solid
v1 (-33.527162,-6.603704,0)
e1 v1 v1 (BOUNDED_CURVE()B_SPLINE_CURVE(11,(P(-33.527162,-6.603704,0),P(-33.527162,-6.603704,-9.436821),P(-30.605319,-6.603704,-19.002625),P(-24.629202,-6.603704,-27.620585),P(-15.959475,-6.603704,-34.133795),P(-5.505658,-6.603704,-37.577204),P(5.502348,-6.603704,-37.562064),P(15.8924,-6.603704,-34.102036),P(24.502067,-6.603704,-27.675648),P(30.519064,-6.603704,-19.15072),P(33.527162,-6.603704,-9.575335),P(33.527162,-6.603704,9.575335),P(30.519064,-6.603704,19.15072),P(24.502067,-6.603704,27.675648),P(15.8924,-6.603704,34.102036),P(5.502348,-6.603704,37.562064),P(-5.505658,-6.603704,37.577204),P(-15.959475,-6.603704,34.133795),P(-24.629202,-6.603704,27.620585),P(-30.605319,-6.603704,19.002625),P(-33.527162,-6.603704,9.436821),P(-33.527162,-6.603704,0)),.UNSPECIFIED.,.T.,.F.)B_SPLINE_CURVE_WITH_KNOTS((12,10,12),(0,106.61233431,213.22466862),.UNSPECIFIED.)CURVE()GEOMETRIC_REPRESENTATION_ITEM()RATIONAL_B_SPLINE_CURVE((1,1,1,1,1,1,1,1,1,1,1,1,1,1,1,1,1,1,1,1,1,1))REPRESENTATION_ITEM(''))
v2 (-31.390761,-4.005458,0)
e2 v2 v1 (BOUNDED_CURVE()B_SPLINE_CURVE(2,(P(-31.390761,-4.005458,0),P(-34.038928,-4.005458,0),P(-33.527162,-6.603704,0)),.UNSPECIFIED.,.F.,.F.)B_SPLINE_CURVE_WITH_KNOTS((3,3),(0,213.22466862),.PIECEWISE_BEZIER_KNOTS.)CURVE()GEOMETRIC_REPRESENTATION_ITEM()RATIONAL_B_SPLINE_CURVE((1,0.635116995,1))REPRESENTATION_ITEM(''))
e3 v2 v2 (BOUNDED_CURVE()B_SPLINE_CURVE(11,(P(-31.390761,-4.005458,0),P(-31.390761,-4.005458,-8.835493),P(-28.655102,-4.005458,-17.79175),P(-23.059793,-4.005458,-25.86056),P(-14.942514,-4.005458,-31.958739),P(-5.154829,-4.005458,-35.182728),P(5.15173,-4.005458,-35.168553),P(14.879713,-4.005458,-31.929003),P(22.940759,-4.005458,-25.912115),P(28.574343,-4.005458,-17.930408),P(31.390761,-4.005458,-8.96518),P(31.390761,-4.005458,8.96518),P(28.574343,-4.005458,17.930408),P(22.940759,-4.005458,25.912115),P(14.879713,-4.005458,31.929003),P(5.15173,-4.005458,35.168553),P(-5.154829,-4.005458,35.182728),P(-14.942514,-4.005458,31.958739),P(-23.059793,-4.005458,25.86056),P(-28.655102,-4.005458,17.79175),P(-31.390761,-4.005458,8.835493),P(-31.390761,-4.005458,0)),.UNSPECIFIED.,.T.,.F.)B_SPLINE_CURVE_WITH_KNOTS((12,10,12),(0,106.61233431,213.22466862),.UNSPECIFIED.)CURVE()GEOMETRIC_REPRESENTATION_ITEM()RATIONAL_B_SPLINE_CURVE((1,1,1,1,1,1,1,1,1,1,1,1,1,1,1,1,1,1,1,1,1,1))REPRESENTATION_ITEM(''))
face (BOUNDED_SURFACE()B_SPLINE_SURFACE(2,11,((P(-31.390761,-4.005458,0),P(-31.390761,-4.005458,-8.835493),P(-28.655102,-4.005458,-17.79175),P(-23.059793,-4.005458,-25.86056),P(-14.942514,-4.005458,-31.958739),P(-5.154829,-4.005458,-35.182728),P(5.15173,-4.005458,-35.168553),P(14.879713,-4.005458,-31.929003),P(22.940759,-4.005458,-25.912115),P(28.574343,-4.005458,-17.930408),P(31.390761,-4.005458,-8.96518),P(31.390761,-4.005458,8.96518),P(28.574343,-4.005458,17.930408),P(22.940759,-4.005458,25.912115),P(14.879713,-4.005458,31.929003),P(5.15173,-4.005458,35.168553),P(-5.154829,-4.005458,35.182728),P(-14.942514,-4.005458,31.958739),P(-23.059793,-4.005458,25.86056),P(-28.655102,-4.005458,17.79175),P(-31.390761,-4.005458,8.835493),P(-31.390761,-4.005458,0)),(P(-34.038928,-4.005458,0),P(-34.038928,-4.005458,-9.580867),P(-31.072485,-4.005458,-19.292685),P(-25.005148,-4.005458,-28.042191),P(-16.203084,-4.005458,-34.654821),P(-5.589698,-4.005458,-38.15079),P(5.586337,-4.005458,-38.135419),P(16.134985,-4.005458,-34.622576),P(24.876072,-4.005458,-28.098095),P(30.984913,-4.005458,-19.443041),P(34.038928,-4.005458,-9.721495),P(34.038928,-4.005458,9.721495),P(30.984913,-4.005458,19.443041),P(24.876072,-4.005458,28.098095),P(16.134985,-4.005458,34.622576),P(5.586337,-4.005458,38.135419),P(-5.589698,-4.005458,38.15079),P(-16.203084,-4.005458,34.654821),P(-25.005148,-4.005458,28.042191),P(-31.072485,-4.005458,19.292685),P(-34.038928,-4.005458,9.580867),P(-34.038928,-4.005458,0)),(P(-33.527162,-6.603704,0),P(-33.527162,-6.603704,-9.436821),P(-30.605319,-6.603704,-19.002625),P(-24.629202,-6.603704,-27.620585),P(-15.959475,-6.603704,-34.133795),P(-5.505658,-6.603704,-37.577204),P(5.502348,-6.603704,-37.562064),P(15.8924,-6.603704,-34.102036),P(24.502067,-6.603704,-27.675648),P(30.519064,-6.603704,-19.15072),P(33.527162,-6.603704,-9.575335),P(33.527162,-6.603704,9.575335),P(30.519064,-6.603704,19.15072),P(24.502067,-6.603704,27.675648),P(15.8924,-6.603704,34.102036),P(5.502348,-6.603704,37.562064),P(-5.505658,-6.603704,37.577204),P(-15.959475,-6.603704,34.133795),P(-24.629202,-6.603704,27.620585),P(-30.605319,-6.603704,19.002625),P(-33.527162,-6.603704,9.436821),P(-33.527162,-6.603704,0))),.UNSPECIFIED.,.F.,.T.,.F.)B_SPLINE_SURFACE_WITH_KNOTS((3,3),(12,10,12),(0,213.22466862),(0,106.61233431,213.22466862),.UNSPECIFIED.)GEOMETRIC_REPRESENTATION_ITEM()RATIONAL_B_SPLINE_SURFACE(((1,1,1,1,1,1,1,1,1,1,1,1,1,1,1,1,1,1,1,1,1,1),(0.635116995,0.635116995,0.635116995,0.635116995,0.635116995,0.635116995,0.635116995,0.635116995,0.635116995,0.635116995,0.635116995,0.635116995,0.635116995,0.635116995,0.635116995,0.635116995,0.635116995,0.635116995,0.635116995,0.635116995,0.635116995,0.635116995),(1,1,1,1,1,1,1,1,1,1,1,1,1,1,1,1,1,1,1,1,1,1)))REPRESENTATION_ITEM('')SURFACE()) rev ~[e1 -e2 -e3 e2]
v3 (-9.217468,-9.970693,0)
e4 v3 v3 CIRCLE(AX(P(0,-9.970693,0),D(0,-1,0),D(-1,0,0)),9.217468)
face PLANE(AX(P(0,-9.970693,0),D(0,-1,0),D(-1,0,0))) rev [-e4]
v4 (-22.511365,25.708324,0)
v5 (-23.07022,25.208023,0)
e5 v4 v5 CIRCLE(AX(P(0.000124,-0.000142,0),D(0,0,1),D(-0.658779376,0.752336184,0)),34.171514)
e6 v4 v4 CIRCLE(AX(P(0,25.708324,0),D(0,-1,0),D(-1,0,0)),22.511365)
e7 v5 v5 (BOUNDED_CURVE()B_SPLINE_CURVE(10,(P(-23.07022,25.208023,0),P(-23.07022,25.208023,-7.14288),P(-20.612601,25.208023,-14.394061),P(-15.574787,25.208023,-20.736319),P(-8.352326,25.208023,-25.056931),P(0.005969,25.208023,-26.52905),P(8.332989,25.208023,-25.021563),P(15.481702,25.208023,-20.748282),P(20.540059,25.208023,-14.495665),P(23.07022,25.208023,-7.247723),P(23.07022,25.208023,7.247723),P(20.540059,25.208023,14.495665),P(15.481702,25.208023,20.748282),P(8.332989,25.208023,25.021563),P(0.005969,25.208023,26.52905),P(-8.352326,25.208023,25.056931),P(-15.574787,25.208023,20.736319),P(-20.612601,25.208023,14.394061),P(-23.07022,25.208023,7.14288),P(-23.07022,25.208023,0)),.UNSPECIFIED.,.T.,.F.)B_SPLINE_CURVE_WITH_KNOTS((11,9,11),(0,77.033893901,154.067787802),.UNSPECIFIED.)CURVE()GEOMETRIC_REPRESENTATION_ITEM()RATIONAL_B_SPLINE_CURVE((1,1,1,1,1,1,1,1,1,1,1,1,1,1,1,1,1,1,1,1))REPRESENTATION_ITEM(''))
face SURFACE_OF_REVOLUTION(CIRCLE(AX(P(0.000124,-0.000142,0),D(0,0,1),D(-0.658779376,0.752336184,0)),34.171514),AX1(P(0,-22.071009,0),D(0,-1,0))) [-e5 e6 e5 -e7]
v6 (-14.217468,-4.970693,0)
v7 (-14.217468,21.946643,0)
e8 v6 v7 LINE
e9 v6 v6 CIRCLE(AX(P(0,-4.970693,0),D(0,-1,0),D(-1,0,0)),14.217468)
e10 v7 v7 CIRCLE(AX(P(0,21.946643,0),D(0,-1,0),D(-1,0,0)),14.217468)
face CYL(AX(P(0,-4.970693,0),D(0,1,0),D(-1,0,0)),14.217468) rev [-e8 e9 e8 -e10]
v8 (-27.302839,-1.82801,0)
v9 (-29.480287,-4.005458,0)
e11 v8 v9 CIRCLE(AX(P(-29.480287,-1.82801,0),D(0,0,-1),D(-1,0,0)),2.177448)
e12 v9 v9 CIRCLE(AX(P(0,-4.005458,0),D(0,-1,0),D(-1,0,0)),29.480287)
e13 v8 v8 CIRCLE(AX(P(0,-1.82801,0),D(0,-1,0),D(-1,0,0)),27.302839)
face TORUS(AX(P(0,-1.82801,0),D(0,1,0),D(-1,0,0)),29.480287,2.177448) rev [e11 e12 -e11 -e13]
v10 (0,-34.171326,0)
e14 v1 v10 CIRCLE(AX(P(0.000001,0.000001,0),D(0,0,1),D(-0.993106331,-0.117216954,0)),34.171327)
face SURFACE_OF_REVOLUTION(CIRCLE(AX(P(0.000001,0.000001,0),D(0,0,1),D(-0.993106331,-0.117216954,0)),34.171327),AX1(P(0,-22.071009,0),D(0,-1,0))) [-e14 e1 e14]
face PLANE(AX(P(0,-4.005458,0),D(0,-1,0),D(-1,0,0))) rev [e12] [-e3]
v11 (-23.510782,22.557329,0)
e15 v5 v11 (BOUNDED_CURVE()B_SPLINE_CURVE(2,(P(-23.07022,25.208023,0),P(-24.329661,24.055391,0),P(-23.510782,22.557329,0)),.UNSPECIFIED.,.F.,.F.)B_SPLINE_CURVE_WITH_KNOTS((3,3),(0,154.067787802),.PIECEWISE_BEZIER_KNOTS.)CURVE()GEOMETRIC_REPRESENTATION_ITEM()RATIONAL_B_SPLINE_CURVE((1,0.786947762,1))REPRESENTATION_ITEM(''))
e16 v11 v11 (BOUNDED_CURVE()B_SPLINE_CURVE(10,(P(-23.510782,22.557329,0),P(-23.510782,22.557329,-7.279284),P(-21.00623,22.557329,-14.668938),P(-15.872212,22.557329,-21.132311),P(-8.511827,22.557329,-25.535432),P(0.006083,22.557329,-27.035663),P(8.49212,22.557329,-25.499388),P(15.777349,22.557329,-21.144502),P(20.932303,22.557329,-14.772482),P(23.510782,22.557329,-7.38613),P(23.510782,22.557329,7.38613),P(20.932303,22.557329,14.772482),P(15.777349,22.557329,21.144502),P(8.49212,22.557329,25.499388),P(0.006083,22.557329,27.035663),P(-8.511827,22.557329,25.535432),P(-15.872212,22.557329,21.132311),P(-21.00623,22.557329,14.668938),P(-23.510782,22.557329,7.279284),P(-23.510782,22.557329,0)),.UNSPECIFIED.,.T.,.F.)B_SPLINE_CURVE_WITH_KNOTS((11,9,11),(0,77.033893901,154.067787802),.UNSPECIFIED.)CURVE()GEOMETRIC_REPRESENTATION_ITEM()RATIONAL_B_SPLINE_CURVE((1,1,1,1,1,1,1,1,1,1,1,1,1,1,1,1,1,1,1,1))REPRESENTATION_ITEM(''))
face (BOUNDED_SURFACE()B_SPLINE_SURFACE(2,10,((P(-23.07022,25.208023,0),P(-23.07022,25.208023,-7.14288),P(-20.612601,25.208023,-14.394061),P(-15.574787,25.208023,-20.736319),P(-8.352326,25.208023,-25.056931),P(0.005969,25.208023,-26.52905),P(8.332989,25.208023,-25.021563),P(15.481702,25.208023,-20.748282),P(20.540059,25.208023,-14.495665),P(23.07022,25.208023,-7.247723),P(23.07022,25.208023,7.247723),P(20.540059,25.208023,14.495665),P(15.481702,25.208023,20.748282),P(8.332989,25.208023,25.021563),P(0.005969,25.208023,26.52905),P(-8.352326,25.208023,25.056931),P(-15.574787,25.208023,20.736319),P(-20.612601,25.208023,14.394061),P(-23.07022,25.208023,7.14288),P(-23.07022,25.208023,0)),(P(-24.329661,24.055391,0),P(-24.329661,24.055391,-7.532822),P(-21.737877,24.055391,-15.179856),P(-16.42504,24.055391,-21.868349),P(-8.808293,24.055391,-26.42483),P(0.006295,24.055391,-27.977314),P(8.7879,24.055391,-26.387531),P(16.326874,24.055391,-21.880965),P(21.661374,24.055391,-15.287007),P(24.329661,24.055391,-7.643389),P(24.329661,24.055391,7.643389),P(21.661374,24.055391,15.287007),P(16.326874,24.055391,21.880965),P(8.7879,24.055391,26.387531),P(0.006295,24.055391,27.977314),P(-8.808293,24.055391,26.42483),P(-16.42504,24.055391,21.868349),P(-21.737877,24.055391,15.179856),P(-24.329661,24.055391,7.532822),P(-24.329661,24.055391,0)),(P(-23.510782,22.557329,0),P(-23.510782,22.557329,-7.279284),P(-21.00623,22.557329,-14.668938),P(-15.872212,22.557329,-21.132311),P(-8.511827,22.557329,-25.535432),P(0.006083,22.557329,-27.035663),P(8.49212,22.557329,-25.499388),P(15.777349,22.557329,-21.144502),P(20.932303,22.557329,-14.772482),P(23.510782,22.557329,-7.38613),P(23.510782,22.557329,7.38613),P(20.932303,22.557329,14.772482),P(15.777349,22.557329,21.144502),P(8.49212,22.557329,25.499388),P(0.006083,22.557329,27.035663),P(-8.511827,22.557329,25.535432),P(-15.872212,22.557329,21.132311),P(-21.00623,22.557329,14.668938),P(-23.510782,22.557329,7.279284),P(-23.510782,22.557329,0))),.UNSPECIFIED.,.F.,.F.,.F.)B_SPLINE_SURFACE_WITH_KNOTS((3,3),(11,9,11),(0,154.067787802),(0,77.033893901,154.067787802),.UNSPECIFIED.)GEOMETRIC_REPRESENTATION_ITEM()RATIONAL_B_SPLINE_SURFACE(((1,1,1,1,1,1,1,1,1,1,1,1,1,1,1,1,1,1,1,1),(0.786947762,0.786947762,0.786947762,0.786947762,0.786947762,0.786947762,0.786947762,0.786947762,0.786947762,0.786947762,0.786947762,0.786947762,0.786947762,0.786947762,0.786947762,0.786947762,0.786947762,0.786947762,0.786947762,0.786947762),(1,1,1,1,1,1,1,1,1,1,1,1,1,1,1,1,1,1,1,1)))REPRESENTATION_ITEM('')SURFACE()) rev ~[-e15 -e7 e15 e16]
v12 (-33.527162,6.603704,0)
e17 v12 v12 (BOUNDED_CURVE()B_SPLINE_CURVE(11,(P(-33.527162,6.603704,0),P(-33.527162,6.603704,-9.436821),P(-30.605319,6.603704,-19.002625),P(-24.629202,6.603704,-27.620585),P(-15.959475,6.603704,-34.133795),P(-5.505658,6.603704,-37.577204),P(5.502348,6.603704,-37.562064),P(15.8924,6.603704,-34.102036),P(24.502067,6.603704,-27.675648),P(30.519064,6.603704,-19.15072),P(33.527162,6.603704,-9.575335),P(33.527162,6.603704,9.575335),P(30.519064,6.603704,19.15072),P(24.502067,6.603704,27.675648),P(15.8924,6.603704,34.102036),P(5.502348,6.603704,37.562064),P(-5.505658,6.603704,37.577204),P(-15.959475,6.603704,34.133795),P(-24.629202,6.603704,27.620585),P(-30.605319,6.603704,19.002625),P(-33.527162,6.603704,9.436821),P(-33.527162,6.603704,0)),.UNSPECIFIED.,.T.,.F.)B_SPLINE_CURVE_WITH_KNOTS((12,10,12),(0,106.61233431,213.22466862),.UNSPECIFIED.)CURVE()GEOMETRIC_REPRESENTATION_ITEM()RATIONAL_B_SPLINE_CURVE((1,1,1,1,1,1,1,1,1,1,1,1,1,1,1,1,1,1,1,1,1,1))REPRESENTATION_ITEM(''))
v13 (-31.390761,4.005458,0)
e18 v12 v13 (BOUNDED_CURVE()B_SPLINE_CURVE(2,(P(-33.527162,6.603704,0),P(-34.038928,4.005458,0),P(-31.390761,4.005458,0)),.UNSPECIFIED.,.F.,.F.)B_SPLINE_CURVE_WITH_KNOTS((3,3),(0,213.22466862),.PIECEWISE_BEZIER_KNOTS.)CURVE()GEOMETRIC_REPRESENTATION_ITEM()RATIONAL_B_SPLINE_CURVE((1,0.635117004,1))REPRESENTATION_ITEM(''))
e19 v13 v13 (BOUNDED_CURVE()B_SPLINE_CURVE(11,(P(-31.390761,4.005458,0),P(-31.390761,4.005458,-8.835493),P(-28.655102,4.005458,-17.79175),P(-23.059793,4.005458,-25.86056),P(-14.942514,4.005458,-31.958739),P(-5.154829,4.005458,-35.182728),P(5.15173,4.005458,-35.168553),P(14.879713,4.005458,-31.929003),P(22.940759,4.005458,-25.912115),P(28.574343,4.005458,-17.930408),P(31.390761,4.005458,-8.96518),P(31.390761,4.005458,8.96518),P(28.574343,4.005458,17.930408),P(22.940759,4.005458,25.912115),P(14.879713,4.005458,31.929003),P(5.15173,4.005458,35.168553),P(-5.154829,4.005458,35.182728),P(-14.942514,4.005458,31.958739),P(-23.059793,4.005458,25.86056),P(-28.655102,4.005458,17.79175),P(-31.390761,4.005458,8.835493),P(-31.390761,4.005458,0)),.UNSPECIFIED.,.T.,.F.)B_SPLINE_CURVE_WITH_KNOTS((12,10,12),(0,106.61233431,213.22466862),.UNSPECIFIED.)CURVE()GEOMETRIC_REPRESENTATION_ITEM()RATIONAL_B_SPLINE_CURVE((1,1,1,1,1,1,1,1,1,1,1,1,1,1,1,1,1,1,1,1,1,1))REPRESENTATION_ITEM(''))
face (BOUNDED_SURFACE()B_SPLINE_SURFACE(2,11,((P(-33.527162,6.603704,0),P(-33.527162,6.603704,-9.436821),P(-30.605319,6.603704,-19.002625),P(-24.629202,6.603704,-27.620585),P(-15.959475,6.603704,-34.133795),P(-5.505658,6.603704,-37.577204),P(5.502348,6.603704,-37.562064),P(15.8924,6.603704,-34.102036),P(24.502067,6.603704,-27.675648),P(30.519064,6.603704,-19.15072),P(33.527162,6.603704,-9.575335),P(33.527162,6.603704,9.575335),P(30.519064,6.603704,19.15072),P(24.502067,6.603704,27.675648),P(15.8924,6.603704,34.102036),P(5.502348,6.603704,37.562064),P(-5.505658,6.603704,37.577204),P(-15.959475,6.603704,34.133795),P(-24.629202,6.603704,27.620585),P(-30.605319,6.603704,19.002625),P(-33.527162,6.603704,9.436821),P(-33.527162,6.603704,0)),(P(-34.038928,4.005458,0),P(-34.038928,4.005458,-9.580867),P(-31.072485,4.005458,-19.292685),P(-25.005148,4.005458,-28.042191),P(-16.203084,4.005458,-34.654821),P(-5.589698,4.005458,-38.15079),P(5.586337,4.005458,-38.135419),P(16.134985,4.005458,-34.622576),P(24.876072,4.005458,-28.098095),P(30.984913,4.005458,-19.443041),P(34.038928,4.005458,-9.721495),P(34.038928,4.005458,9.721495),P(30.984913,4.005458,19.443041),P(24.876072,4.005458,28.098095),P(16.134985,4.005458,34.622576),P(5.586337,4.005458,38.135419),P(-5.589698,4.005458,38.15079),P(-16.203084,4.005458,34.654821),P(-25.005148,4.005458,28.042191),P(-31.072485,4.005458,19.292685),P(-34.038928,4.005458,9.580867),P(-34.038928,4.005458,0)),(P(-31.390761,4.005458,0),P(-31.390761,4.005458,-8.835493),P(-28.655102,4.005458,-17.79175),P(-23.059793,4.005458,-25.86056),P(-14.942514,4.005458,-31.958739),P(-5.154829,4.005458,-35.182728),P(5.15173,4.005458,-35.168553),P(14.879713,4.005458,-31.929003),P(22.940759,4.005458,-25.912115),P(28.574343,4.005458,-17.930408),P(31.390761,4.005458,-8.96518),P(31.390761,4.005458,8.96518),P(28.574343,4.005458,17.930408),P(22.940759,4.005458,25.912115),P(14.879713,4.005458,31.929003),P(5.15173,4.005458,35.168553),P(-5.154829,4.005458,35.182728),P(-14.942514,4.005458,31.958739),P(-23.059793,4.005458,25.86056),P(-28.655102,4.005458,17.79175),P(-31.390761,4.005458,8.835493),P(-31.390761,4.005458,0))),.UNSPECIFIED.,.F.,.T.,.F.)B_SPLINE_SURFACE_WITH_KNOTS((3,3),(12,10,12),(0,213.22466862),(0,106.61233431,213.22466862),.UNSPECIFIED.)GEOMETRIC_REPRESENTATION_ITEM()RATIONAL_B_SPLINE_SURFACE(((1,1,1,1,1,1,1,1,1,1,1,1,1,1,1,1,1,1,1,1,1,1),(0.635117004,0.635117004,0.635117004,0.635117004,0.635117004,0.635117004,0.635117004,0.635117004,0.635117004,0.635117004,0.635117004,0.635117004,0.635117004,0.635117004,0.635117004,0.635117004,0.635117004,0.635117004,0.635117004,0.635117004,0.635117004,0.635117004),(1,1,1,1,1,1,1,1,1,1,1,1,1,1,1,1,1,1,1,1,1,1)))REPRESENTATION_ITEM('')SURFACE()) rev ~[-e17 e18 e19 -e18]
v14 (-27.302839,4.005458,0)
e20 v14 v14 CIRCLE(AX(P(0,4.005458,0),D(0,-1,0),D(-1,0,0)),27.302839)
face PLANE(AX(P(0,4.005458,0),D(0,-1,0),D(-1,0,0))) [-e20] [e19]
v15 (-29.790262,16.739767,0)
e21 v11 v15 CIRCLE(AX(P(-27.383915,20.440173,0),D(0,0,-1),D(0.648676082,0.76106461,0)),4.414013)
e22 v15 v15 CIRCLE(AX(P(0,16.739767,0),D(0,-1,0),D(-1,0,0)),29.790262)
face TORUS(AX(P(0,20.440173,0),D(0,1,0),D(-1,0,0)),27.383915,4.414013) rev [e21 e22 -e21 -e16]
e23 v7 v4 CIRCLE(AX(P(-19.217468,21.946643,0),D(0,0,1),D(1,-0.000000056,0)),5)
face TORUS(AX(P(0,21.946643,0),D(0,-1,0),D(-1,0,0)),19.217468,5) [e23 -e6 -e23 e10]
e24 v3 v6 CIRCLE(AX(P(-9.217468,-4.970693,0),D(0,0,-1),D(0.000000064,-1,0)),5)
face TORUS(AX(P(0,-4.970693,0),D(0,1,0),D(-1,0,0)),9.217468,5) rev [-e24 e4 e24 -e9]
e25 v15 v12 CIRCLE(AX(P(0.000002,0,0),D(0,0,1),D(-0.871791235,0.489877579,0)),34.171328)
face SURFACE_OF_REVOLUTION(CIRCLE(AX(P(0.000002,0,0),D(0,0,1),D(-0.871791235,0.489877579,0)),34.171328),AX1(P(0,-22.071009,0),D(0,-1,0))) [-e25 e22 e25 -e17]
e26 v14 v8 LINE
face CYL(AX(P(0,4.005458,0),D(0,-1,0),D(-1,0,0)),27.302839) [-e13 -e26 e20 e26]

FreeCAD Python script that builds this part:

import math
import FreeCAD as App
import Part
import Sketcher
from FreeCAD import Vector
Q = App.Units.Quantity


def edges_at(feature, points):
    """Names of the edges that pass closest to the given points."""
    edges = feature.Shape.Edges
    near = lambda p: min(range(len(edges)), key=lambda i: edges[i].distToShape(Part.Vertex(*p))[0])
    return sorted({f"Edge{near(p) + 1}" for p in points})

doc = App.newDocument("Part")
body = doc.addObject("PartDesign::Body", "Body")

sketch1 = doc.addObject("Sketcher::SketchObject", "Sketch")
body.addObject(sketch1)
sketch1.AttachmentSupport = (doc.XY_Plane, [""])
sketch1.MapMode = "FlatFace"
sketch1.addGeometry([
    Part.ArcOfCircle(Part.Circle(Vector(-19.2, 21.9, 0), Vector(0, 0, 1), 5), math.radians(0), math.radians(131)),
    Part.ArcOfCircle(Part.Circle(Vector(0, 0, 0), Vector(0, 0, 1), 34.2), math.radians(131.21), math.radians(135.85)),
    Part.ArcOfCircle(Part.Circle(Vector(-27.4, 20.4, 0), Vector(0, 0, 1), 4.4), math.radians(-123), math.radians(50)),
    Part.ArcOfCircle(Part.Circle(Vector(0, 0, 0), Vector(0, 0, 1), 34.2), math.radians(151), math.radians(173)),
    Part.LineSegment(Vector(-33.9, 4, 0), Vector(-27.3, 4, 0)),
    Part.LineSegment(Vector(-27.3, 4, 0), Vector(-27.3, -4, 0)),
    Part.LineSegment(Vector(-27.3, -4, 0), Vector(-33.9, -4, 0)),
    Part.ArcOfCircle(Part.Circle(Vector(0, 0, 0), Vector(0, 0, 1), 34.2), math.radians(-173), math.radians(-90)),
    Part.LineSegment(Vector(0, -34.2, 0), Vector(0, -10, 0)),
    Part.LineSegment(Vector(0, -10, 0), Vector(-9.2, -10, 0)),
    Part.ArcOfCircle(Part.Circle(Vector(-9.2, -5, 0), Vector(0, 0, 1), 5), math.radians(180), math.radians(270)),
    Part.LineSegment(Vector(-14.2, -5, 0), Vector(-14.2, 21.9, 0)),
], False)
sketch1.addConstraint([
    Sketcher.Constraint("Tangent", 0, 2, 1, 1),
    Sketcher.Constraint("Coincident", 1, 2, 2, 2),
    Sketcher.Constraint("Coincident", 2, 1, 3, 1),
    Sketcher.Constraint("Coincident", 3, 2, 4, 1),
    Sketcher.Constraint("Coincident", 4, 2, 5, 1),
    Sketcher.Constraint("Coincident", 5, 2, 6, 1),
    Sketcher.Constraint("Coincident", 6, 2, 7, 1),
    Sketcher.Constraint("Coincident", 7, 2, 8, 1),
    Sketcher.Constraint("Coincident", 8, 2, 9, 1),
    Sketcher.Constraint("Tangent", 9, 2, 10, 2),
    Sketcher.Constraint("Tangent", 10, 1, 11, 1),
    Sketcher.Constraint("Tangent", 11, 2, 0, 1),
    Sketcher.Constraint("Horizontal", 4),
    Sketcher.Constraint("Vertical", 5),
    Sketcher.Constraint("Horizontal", 6),
    Sketcher.Constraint("Vertical", 8),
    Sketcher.Constraint("Horizontal", 9),
    Sketcher.Constraint("Vertical", 11),
    Sketcher.Constraint("Coincident", 3, 3, -1, 1),
    Sketcher.Constraint("Coincident", 7, 3, -1, 1),
    Sketcher.Constraint("Equal", 3, 7),
    Sketcher.Constraint("Equal", 0, 10),
    Sketcher.Constraint("PointOnObject", 7, 2, -2),
    Sketcher.Constraint("Vertical", 3, 2, 6, 2),
    Sketcher.Constraint("Radius", 0, Q("5 mm")),
    Sketcher.Constraint("Radius", 1, Q("34.171514 mm")),
    Sketcher.Constraint("Radius", 2, Q("4.414013 mm")),
    Sketcher.Constraint("Radius", 3, Q("34.171328 mm")),
    Sketcher.Constraint("DistanceX", 4, 1, 4, 2, Q("6.632921 mm")),
    Sketcher.Constraint("DistanceY", 1, 2, 0, 2, Q("1.908802 mm")),
    Sketcher.Constraint("DistanceX", 9, 2, 9, 1, Q("9.217468 mm")),
    Sketcher.Constraint("DistanceY", 5, 2, 5, 1, Q("8.010916 mm")),
    Sketcher.Constraint("DistanceY", 8, 1, 8, 2, Q("24.200633 mm")),
    Sketcher.Constraint("DistanceY", 11, 1, 11, 2, Q("26.917336 mm")),
    Sketcher.Constraint("DistanceX", 0, 3, 1, 3, Q("19.217592 mm")),
    Sketcher.Constraint("DistanceY", 2, 3, 0, 3, Q("1.50647 mm")),
])
revolution = doc.addObject("PartDesign::Revolution", "Revolution")
body.addObject(revolution)
revolution.Profile = sketch1
revolution.ReferenceAxis = (sketch1, ["V_Axis"])
revolution.Angle = 360
doc.recompute()

fillet = doc.addObject("PartDesign::Fillet", "Fillet")
body.addObject(fillet)
fillet.Base = (revolution, edges_at(revolution, [
    (33.936, 4.005, 0),
    (27.303, -4.005, 0),
    (24.521, 23.8, 0),
    (33.936, -4.005, 0),
]))
fillet.Radius = 2.177448

doc.recompute()
